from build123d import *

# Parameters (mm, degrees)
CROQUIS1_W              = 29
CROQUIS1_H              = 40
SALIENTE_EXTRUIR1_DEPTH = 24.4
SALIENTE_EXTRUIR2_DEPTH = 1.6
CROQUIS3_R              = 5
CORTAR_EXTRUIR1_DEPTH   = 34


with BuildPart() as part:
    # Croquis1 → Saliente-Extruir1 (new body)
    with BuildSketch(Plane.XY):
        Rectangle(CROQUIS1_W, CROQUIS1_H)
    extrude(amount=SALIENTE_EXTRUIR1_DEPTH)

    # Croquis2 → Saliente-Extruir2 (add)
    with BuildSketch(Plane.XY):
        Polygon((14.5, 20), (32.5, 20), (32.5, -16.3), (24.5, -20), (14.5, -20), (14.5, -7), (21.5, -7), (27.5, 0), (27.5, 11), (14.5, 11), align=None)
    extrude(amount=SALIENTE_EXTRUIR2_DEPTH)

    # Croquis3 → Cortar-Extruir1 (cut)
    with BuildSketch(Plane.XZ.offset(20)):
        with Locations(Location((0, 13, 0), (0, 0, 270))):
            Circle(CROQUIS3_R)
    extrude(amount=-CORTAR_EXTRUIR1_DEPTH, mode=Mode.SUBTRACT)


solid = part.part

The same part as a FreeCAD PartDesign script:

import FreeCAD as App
import Part
import Sketcher
Q = App.Units.Quantity

doc = App.newDocument("Part")
params = doc.addObject("Spreadsheet::Sheet", "Params")
for row, (alias, value) in enumerate([
    ("sketch1_width", "29 mm"),
    ("sketch1_height", "40 mm"),
    ("pad1_length", "24.4 mm"),
    ("sketch2_width", "18 mm"),
    ("sketch2_width2", "13 mm"),
    ("sketch2_width3", "7 mm"),
    ("sketch2_width4", "10 mm"),
    ("sketch2_height", "9 mm"),
    ("pad2_length", "1.6 mm"),
    ("sketch3_diameter", "10 mm"),
    ("pocket1_length", "34 mm"),
], start=1):
    params.set(f"A{row}", alias)
    params.set(f"B{row}", "=" + value)
    params.setAlias(f"B{row}", alias)

body = doc.addObject("PartDesign::Body", "Body")

# Sketch on XY plane
sketch1 = body.newObject("Sketcher::SketchObject", "Sketch")
sketch1.AttachmentSupport = (doc.getObject("XY_Plane"), [""])
sketch1.MapMode = "FlatFace"
sketch1.addGeometry(Part.LineSegment(App.Vector(-14.5, 20, 0), App.Vector(-14.5, -20, 0)), False)
sketch1.addGeometry(Part.LineSegment(App.Vector(-14.5, -20, 0), App.Vector(14.5, -20, 0)), False)
sketch1.addGeometry(Part.LineSegment(App.Vector(14.5, -20, 0), App.Vector(14.5, 20, 0)), False)
sketch1.addGeometry(Part.LineSegment(App.Vector(14.5, 20, 0), App.Vector(-14.5, 20, 0)), False)
sketch1.addConstraint(Sketcher.Constraint("Coincident", 0, 2, 1, 1))
sketch1.addConstraint(Sketcher.Constraint("Coincident", 1, 2, 2, 1))
sketch1.addConstraint(Sketcher.Constraint("Coincident", 2, 2, 3, 1))
sketch1.addConstraint(Sketcher.Constraint("Coincident", 3, 2, 0, 1))
sketch1.addConstraint(Sketcher.Constraint("Vertical", 0))
sketch1.addConstraint(Sketcher.Constraint("Horizontal", 1))
sketch1.addConstraint(Sketcher.Constraint("Vertical", 2))
sketch1.addConstraint(Sketcher.Constraint("Horizontal", 3))
sketch1.addConstraint(Sketcher.Constraint("Symmetric", 0, 2, 2, 2, -1, 1))
sketch1.addConstraint(Sketcher.Constraint("DistanceX", 1, 1, 1, 2, Q("29 mm")))
sketch1.addConstraint(Sketcher.Constraint("DistanceY", 0, 2, 0, 1, Q("40 mm")))
sketch1.setExpression("Constraints[9]", "Params.sketch1_width")
sketch1.setExpression("Constraints[10]", "Params.sketch1_height")
pad1 = body.newObject("PartDesign::Pad", "Pad")
pad1.Profile = sketch1
pad1.setExpression("Length", "Params.pad1_length")

# Sketch on XY plane
sketch2 = body.newObject("Sketcher::SketchObject", "Sketch001")
sketch2.AttachmentSupport = (doc.getObject("XY_Plane"), [""])
sketch2.MapMode = "FlatFace"
sketch2.addGeometry(Part.LineSegment(App.Vector(32.5, 20, 0), App.Vector(14.5, 20, 0)), False)
sketch2.addGeometry(Part.LineSegment(App.Vector(14.5, 20, 0), App.Vector(14.5, 11, 0)), False)
sketch2.addGeometry(Part.LineSegment(App.Vector(14.5, 11, 0), App.Vector(27.5, 11, 0)), False)
sketch2.addGeometry(Part.LineSegment(App.Vector(27.5, 11, 0), App.Vector(27.5, 0, 0)), False)
sketch2.addGeometry(Part.LineSegment(App.Vector(27.5, 0, 0), App.Vector(21.5, -7, 0)), False)
sketch2.addGeometry(Part.LineSegment(App.Vector(21.5, -7, 0), App.Vector(14.5, -7, 0)), False)
sketch2.addGeometry(Part.LineSegment(App.Vector(14.5, -7, 0), App.Vector(14.5, -20, 0)), False)
sketch2.addGeometry(Part.LineSegment(App.Vector(14.5, -20, 0), App.Vector(24.5, -20, 0)), False)
sketch2.addGeometry(Part.LineSegment(App.Vector(24.5, -20, 0), App.Vector(32.5, -16.3, 0)), False)
sketch2.addGeometry(Part.LineSegment(App.Vector(32.5, -16.3, 0), App.Vector(32.5, 20, 0)), False)
sketch2.addConstraint(Sketcher.Constraint("Coincident", 0, 2, 1, 1))
sketch2.addConstraint(Sketcher.Constraint("Coincident", 1, 2, 2, 1))
sketch2.addConstraint(Sketcher.Constraint("Coincident", 2, 2, 3, 1))
sketch2.addConstraint(Sketcher.Constraint("Coincident", 3, 2, 4, 1))
sketch2.addConstraint(Sketcher.Constraint("Coincident", 4, 2, 5, 1))
sketch2.addConstraint(Sketcher.Constraint("Coincident", 5, 2, 6, 1))
sketch2.addConstraint(Sketcher.Constraint("Coincident", 6, 2, 7, 1))
sketch2.addConstraint(Sketcher.Constraint("Coincident", 7, 2, 8, 1))
sketch2.addConstraint(Sketcher.Constraint("Coincident", 8, 2, 9, 1))
sketch2.addConstraint(Sketcher.Constraint("Coincident", 9, 2, 0, 1))
sketch2.addConstraint(Sketcher.Constraint("Horizontal", 0))
sketch2.addConstraint(Sketcher.Constraint("Vertical", 1))
sketch2.addConstraint(Sketcher.Constraint("Horizontal", 2))
sketch2.addConstraint(Sketcher.Constraint("Vertical", 3))
sketch2.addConstraint(Sketcher.Constraint("Horizontal", 5))
sketch2.addConstraint(Sketcher.Constraint("Vertical", 6))
sketch2.addConstraint(Sketcher.Constraint("Horizontal", 7))
sketch2.addConstraint(Sketcher.Constraint("Vertical", 9))
sketch2.addConstraint(Sketcher.Constraint("Symmetric", 0, 2, 6, 2, -1))
sketch2.addConstraint(Sketcher.Constraint("PointOnObject", 3, 2, -1))
sketch2.addConstraint(Sketcher.Constraint("Equal", 2, 6))
sketch2.addConstraint(Sketcher.Constraint("DistanceX", 0, 2, 0, 1, Q("18 mm")))
sketch2.addConstraint(Sketcher.Constraint("DistanceX", 2, 1, 2, 2, Q("13 mm")))
sketch2.addConstraint(Sketcher.Constraint("DistanceX", 5, 2, 5, 1, Q("7 mm")))
sketch2.addConstraint(Sketcher.Constraint("DistanceX", 7, 1, 7, 2, Q("10 mm")))
sketch2.addConstraint(Sketcher.Constraint("DistanceY", 1, 2, 1, 1, Q("9 mm")))
sketch2.addConstraint(Sketcher.Constraint("DistanceY", 3, 2, 3, 1, Q("11 mm")))
sketch2.addConstraint(Sketcher.Constraint("DistanceY", 9, 1, 9, 2, Q("36.3 mm")))
sketch2.addConstraint(Sketcher.Constraint("DistanceX", -1, 1, 0, 2, Q("14.5 mm")))
sketch2.setExpression("Constraints[21]", "Params.sketch2_width")
sketch2.setExpression("Constraints[22]", "Params.sketch2_width2")
sketch2.setExpression("Constraints[23]", "Params.sketch2_width3")
sketch2.setExpression("Constraints[24]", "Params.sketch2_width4")
sketch2.setExpression("Constraints[25]", "Params.sketch2_height")
pad2 = body.newObject("PartDesign::Pad", "Pad001")
pad2.Profile = sketch2
pad2.setExpression("Length", "Params.pad2_length")

# Sketch on XZ plane
sketch3 = body.newObject("Sketcher::SketchObject", "Sketch002")
sketch3.AttachmentSupport = (doc.getObject("XZ_Plane"), [""])
sketch3.MapMode = "FlatFace"
sketch3.AttachmentOffset = App.Placement(App.Vector(0, 0, 20), App.Rotation())
sketch3.addGeometry(Part.Circle(App.Vector(0, 13, 0), App.Vector(0, 0, 1), 5), False)
sketch3.addConstraint(Sketcher.Constraint("PointOnObject", 0, 3, -2))
sketch3.addConstraint(Sketcher.Constraint("Diameter", 0, Q("10 mm")))
sketch3.addConstraint(Sketcher.Constraint("DistanceY", -1, 1, 0, 3, Q("13 mm")))
sketch3.setExpression("Constraints[1]", "Params.sketch3_diameter")
pocket1 = body.newObject("PartDesign::Pocket", "Pocket")
pocket1.Profile = sketch3
pocket1.setExpression("Length", "Params.pocket1_length")

doc.recompute()
